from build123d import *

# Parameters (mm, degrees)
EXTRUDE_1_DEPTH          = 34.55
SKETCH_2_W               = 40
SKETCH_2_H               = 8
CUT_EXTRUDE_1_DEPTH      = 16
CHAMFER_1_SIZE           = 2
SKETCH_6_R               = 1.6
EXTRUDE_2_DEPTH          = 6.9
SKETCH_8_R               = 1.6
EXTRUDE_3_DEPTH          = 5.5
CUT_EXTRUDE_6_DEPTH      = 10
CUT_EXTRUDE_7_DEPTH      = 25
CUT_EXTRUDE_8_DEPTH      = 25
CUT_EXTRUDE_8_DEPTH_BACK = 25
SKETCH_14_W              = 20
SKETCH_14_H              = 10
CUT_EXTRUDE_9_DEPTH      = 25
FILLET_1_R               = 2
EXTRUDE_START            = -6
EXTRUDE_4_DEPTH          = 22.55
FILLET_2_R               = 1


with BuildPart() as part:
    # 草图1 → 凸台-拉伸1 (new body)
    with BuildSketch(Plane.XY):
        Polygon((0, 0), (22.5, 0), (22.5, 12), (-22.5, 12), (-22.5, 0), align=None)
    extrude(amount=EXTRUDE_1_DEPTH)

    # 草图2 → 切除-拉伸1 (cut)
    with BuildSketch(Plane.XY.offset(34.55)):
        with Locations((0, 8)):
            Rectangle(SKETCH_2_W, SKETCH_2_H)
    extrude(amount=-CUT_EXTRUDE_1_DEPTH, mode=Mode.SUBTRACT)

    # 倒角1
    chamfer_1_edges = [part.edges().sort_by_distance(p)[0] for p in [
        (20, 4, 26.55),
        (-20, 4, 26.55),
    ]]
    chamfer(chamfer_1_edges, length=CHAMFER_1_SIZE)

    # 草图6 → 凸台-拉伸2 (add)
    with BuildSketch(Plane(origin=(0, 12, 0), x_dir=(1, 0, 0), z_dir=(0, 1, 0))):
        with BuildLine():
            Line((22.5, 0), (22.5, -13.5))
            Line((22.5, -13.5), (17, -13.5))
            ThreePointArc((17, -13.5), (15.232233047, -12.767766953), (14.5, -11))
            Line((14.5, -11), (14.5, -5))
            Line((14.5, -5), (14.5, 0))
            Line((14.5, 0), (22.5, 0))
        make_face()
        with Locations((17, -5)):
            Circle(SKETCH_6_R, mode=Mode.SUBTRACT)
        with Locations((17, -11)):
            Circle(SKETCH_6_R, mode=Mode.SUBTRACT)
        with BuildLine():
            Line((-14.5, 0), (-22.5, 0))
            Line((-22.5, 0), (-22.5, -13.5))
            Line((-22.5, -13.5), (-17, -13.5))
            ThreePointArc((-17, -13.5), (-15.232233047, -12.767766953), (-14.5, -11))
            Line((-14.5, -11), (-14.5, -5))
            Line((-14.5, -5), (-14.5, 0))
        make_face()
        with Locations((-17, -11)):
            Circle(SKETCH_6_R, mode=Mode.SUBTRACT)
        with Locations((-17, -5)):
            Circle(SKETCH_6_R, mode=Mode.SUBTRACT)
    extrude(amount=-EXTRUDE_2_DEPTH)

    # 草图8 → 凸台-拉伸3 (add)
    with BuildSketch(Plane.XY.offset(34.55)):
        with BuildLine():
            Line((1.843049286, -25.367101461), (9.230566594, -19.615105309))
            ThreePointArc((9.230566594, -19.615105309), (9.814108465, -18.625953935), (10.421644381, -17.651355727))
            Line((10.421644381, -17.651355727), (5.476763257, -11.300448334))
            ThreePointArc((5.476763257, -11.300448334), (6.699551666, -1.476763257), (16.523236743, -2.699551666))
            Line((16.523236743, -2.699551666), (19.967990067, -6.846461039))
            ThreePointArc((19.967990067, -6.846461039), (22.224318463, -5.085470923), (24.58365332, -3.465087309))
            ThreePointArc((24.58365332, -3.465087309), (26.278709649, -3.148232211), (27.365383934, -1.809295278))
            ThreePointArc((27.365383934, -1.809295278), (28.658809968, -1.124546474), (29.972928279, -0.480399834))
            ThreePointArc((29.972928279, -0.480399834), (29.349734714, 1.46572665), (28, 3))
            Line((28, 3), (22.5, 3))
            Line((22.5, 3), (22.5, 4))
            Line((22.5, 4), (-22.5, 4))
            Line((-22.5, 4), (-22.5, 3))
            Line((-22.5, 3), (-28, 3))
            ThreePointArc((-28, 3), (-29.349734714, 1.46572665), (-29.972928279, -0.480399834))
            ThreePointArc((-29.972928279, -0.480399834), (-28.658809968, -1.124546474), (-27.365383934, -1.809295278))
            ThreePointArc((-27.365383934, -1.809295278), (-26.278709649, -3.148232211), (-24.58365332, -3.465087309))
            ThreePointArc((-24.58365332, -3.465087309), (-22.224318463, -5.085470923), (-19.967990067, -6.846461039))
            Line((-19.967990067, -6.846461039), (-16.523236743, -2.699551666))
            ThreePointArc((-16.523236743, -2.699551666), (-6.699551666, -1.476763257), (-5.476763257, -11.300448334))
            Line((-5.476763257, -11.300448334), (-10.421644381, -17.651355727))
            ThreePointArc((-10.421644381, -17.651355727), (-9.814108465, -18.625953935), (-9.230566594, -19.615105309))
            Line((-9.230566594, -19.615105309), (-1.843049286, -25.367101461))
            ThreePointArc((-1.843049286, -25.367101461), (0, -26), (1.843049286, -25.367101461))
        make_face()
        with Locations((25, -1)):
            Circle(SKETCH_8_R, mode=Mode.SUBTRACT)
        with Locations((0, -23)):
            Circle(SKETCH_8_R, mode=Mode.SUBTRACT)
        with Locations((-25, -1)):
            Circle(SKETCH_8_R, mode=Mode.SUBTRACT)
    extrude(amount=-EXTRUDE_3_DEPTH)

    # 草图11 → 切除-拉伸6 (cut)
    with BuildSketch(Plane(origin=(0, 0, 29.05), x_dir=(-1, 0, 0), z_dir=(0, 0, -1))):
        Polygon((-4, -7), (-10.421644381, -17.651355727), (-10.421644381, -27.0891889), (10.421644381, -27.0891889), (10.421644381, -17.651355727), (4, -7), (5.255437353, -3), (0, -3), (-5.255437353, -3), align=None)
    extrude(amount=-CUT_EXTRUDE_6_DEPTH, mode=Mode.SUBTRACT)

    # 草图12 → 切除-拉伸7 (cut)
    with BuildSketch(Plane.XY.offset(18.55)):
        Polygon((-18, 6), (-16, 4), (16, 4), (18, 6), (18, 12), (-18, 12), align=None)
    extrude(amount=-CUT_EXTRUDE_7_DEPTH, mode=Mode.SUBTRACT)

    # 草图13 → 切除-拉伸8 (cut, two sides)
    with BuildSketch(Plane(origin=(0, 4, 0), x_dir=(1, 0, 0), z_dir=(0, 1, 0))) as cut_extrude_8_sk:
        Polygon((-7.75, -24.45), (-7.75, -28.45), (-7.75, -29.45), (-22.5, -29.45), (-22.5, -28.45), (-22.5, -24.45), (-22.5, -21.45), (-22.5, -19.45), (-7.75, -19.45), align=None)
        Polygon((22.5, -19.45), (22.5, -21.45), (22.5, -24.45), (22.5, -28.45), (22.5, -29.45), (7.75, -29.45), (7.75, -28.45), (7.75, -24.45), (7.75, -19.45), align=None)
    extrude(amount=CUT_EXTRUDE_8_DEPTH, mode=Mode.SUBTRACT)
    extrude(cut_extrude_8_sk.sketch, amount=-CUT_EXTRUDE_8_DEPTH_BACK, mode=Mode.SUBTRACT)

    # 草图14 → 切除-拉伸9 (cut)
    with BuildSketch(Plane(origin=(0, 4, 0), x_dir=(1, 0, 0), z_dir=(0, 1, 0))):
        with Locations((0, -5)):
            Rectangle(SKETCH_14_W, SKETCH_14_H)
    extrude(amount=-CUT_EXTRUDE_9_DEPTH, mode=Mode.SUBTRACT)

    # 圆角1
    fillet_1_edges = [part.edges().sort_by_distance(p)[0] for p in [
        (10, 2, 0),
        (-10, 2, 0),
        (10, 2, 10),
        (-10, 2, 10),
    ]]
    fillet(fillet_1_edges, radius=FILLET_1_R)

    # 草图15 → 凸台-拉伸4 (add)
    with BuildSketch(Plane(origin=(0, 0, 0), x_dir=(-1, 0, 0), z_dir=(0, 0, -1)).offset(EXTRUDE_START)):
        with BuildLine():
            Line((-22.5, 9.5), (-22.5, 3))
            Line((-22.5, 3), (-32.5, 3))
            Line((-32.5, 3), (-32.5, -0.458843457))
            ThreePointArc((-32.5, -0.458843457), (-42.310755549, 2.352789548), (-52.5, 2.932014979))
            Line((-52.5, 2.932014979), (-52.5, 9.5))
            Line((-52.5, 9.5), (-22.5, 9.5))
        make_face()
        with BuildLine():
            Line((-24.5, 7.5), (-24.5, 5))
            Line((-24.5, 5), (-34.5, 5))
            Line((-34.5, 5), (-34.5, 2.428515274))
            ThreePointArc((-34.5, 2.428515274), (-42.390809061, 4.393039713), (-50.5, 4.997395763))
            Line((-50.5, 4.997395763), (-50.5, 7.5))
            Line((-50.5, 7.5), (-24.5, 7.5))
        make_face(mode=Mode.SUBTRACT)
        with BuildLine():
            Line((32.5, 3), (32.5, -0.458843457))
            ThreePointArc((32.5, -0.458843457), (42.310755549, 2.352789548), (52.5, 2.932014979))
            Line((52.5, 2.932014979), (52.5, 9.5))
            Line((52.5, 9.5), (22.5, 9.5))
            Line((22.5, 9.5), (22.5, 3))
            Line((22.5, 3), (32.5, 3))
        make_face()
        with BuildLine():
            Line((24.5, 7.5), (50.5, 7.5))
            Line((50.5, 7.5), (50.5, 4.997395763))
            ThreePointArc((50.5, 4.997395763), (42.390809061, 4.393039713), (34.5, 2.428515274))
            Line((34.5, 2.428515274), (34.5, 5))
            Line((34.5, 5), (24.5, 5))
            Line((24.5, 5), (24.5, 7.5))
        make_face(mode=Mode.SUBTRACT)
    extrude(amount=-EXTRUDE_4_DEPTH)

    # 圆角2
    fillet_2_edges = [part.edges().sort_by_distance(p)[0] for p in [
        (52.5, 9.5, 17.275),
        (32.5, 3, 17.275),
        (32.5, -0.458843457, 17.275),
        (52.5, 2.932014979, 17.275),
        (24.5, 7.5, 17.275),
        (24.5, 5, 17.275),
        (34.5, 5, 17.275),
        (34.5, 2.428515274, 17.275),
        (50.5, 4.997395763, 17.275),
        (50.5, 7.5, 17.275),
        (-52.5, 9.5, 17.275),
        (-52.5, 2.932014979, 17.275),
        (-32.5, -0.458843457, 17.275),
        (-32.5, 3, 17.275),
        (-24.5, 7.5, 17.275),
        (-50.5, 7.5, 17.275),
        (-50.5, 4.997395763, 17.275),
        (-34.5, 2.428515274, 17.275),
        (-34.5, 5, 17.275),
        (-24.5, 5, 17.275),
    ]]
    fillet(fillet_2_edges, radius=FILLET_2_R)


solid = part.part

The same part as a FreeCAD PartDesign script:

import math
import FreeCAD as App
import Part
import Sketcher

V = App.Vector
Q = App.Units.Quantity


def edges_at(feature, points):
    """Names of the edges that pass closest to the given points."""
    edges = feature.Shape.Edges
    near = lambda p: min(range(len(edges)), key=lambda i: edges[i].distToShape(Part.Vertex(*p))[0])
    return sorted({f"Edge{near(p) + 1}" for p in points})

doc = App.newDocument("Part")
params = doc.addObject("Spreadsheet::Sheet", "Params")
for row, (alias, value) in enumerate([
    ("sketch1_width", "45 mm"),
    ("sketch1_height", "12 mm"),
    ("pad1_length", "34.55 mm"),
    ("sketch2_width", "40 mm"),
    ("sketch2_height", "8 mm"),
    ("pocket1_length", "16 mm"),
    ("chamfer_size", "2 mm"),
    ("sketch3_diameter", "3.2 mm"),
    ("sketch3_radius", "2.5 mm"),
    ("sketch3_width", "8 mm"),
    ("sketch3_height", "11 mm"),
    ("pad2_length", "6.9 mm"),
    ("sketch4_radius", "7 mm"),
    ("sketch4_radius2", "47 mm"),
    ("sketch4_radius3", "5 mm"),
    ("sketch4_radius4", "3 mm"),
    ("sketch4_diameter", "3.2 mm"),
    ("pad3_length", "5.5 mm"),
    ("pocket2_length", "10 mm"),
    ("sketch6_width", "32 mm"),
    ("sketch6_width2", "36 mm"),
    ("sketch6_height", "6 mm"),
    ("pocket3_length", "25 mm"),
    ("sketch7_height", "10 mm"),
    ("sketch7_width", "14.75 mm"),
    ("sketch8_width", "20 mm"),
    ("sketch8_height", "10 mm"),
    ("pocket5_length", "25 mm"),
    ("fillet_radius", "2 mm"),
    ("sketch9_radius", "46 mm"),
    ("sketch9_radius2", "48 mm"),
    ("sketch9_width", "30 mm"),
    ("sketch9_width2", "10 mm"),
    ("sketch9_width3", "26 mm"),
    ("pad4_length", "22.55 mm"),
    ("fillet2_radius", "1 mm"),
], start=1):
    params.set(f"A{row}", alias)
    params.set(f"B{row}", "=" + value)
    params.setAlias(f"B{row}", alias)

body = doc.addObject("PartDesign::Body", "Body")

# Sketch on XY plane
sketch1 = body.newObject("Sketcher::SketchObject", "Sketch")
sketch1.AttachmentSupport = (doc.getObject("XY_Plane"), [""])
sketch1.MapMode = "FlatFace"
sketch1.addGeometry(Part.LineSegment(V(22.5, 0, 0), V(22.5, 12, 0)), False)
sketch1.addGeometry(Part.LineSegment(V(22.5, 12, 0), V(-22.5, 12, 0)), False)
sketch1.addGeometry(Part.LineSegment(V(-22.5, 12, 0), V(-22.5, 0, 0)), False)
sketch1.addGeometry(Part.LineSegment(V(-22.5, 0, 0), V(22.5, 0, 0)), False)
sketch1.addConstraint(Sketcher.Constraint("Coincident", 0, 2, 1, 1))
sketch1.addConstraint(Sketcher.Constraint("Coincident", 1, 2, 2, 1))
sketch1.addConstraint(Sketcher.Constraint("Coincident", 2, 2, 3, 1))
sketch1.addConstraint(Sketcher.Constraint("Coincident", 3, 2, 0, 1))
sketch1.addConstraint(Sketcher.Constraint("Vertical", 0))
sketch1.addConstraint(Sketcher.Constraint("Horizontal", 1))
sketch1.addConstraint(Sketcher.Constraint("Vertical", 2))
sketch1.addConstraint(Sketcher.Constraint("Horizontal", 3))
sketch1.addConstraint(Sketcher.Constraint("Symmetric", 2, 2, 3, 2, -1, 1))
sketch1.addConstraint(Sketcher.Constraint("DistanceX", 1, 2, 1, 1, Q("45 mm")))
sketch1.addConstraint(Sketcher.Constraint("DistanceY", 0, 1, 0, 2, Q("12 mm")))
sketch1.setExpression("Constraints[9]", "Params.sketch1_width")
sketch1.setExpression("Constraints[10]", "Params.sketch1_height")
pad1 = body.newObject("PartDesign::Pad", "Pad")
pad1.Profile = sketch1
pad1.setExpression("Length", "Params.pad1_length")

# Sketch on XY plane
sketch2 = body.newObject("Sketcher::SketchObject", "Sketch001")
sketch2.AttachmentSupport = (doc.getObject("XY_Plane"), [""])
sketch2.MapMode = "FlatFace"
sketch2.AttachmentOffset = App.Placement(V(0, 0, 34.55), App.Rotation())
sketch2.addGeometry(Part.LineSegment(V(-20, 12, 0), V(-20, 4, 0)), False)
sketch2.addGeometry(Part.LineSegment(V(-20, 4, 0), V(20, 4, 0)), False)
sketch2.addGeometry(Part.LineSegment(V(20, 4, 0), V(20, 12, 0)), False)
sketch2.addGeometry(Part.LineSegment(V(20, 12, 0), V(-20, 12, 0)), False)
sketch2.addConstraint(Sketcher.Constraint("Coincident", 0, 2, 1, 1))
sketch2.addConstraint(Sketcher.Constraint("Coincident", 1, 2, 2, 1))
sketch2.addConstraint(Sketcher.Constraint("Coincident", 2, 2, 3, 1))
sketch2.addConstraint(Sketcher.Constraint("Coincident", 3, 2, 0, 1))
sketch2.addConstraint(Sketcher.Constraint("Vertical", 0))
sketch2.addConstraint(Sketcher.Constraint("Horizontal", 1))
sketch2.addConstraint(Sketcher.Constraint("Vertical", 2))
sketch2.addConstraint(Sketcher.Constraint("Horizontal", 3))
sketch2.addConstraint(Sketcher.Constraint("DistanceX", 1, 1, 1, 2, Q("40 mm")))
sketch2.addConstraint(Sketcher.Constraint("DistanceY", 0, 2, 0, 1, Q("8 mm")))
sketch2.addConstraint(Sketcher.Constraint("DistanceX", 0, 2, -1, 1, Q("20 mm")))
sketch2.addConstraint(Sketcher.Constraint("DistanceY", -1, 1, 0, 2, Q("4 mm")))
sketch2.setExpression("Constraints[8]", "Params.sketch2_width")
sketch2.setExpression("Constraints[9]", "Params.sketch2_height")
pocket1 = body.newObject("PartDesign::Pocket", "Pocket")
pocket1.Profile = sketch2
pocket1.setExpression("Length", "Params.pocket1_length")
doc.recompute()

chamfer = body.newObject("PartDesign::Chamfer", "Chamfer")
chamfer.Base = (pocket1, edges_at(pocket1, [(20, 4, 26.55), (-20, 4, 26.55)]))
chamfer.setExpression("Size", "Params.chamfer_size")

# Sketch on XZ plane
sketch3 = body.newObject("Sketcher::SketchObject", "Sketch002")
sketch3.AttachmentSupport = (doc.getObject("XZ_Plane"), [""])
sketch3.MapMode = "FlatFace"
sketch3.AttachmentOffset = App.Placement(V(0, 0, -12), App.Rotation())
sketch3.addGeometry(Part.LineSegment(V(22.5, 13.5, 0), V(22.5, 0, 0)), False)
sketch3.addGeometry(Part.LineSegment(V(22.5, 0, 0), V(14.5, 0, 0)), False)
sketch3.addGeometry(Part.LineSegment(V(14.5, 0, 0), V(14.5, 11, 0)), False)
sketch3.addGeometry(Part.ArcOfCircle(Part.Circle(V(17, 11, 0), V(0, 0, 1), 2.5), math.radians(90), math.radians(180)), False)
sketch3.addGeometry(Part.LineSegment(V(17, 13.5, 0), V(22.5, 13.5, 0)), False)
sketch3.addGeometry(Part.Circle(V(17, 11, 0), V(0, 0, 1), 1.6), False)
sketch3.addGeometry(Part.Circle(V(17, 5, 0), V(0, 0, 1), 1.6), False)
sketch3.addGeometry(Part.LineSegment(V(-14.5, 0, 0), V(-22.5, 0, 0)), False)
sketch3.addGeometry(Part.LineSegment(V(-22.5, 0, 0), V(-22.5, 13.5, 0)), False)
sketch3.addGeometry(Part.LineSegment(V(-22.5, 13.5, 0), V(-17, 13.5, 0)), False)
sketch3.addGeometry(Part.ArcOfCircle(Part.Circle(V(-17, 11, 0), V(0, 0, 1), 2.5), math.radians(0), math.radians(90)), False)
sketch3.addGeometry(Part.LineSegment(V(-14.5, 11, 0), V(-14.5, 0, 0)), False)
sketch3.addGeometry(Part.Circle(V(-17, 11, 0), V(0, 0, 1), 1.6), False)
sketch3.addGeometry(Part.Circle(V(-17, 5, 0), V(0, 0, 1), 1.6), False)
sketch3.addConstraint(Sketcher.Constraint("Coincident", 0, 2, 1, 1))
sketch3.addConstraint(Sketcher.Constraint("Coincident", 1, 2, 2, 1))
sketch3.addConstraint(Sketcher.Constraint("Tangent", 2, 2, 3, 2))
sketch3.addConstraint(Sketcher.Constraint("Tangent", 3, 1, 4, 1))
sketch3.addConstraint(Sketcher.Constraint("Coincident", 4, 2, 0, 1))
sketch3.addConstraint(Sketcher.Constraint("Coincident", 7, 2, 8, 1))
sketch3.addConstraint(Sketcher.Constraint("Coincident", 8, 2, 9, 1))
sketch3.addConstraint(Sketcher.Constraint("Tangent", 9, 2, 10, 2))
sketch3.addConstraint(Sketcher.Constraint("Tangent", 10, 1, 11, 1))
sketch3.addConstraint(Sketcher.Constraint("Coincident", 11, 2, 7, 1))
sketch3.addConstraint(Sketcher.Constraint("Vertical", 0))
sketch3.addConstraint(Sketcher.Constraint("Horizontal", 1))
sketch3.addConstraint(Sketcher.Constraint("Vertical", 2))
sketch3.addConstraint(Sketcher.Constraint("Horizontal", 4))
sketch3.addConstraint(Sketcher.Constraint("Horizontal", 7))
sketch3.addConstraint(Sketcher.Constraint("Vertical", 8))
sketch3.addConstraint(Sketcher.Constraint("Horizontal", 9))
sketch3.addConstraint(Sketcher.Constraint("Vertical", 11))
sketch3.addConstraint(Sketcher.Constraint("Coincident", 5, 3, 3, 3))
sketch3.addConstraint(Sketcher.Constraint("Coincident", 12, 3, 10, 3))
sketch3.addConstraint(Sketcher.Constraint("Equal", 5, 6))
sketch3.addConstraint(Sketcher.Constraint("Equal", 3, 10))
sketch3.addConstraint(Sketcher.Constraint("Equal", 6, 12))
sketch3.addConstraint(Sketcher.Constraint("Equal", 12, 13))
sketch3.addConstraint(Sketcher.Constraint("Symmetric", 0, 2, 7, 2, -1, 1))
sketch3.addConstraint(Sketcher.Constraint("Symmetric", 3, 3, 10, 3, -2))
sketch3.addConstraint(Sketcher.Constraint("Symmetric", 6, 3, 13, 3, -2))
sketch3.addConstraint(Sketcher.Constraint("PointOnObject", 0, 2, -1))
sketch3.addConstraint(Sketcher.Constraint("Vertical", 5, 3, 6, 3))
sketch3.addConstraint(Sketcher.Constraint("Diameter", 5, Q("3.2 mm")))
sketch3.addConstraint(Sketcher.Constraint("Radius", 3, Q("2.5 mm")))
sketch3.addConstraint(Sketcher.Constraint("DistanceX", 1, 2, 1, 1, Q("8 mm")))
sketch3.addConstraint(Sketcher.Constraint("DistanceY", 2, 1, 2, 2, Q("11 mm")))
sketch3.addConstraint(Sketcher.Constraint("DistanceX", -1, 1, 3, 3, Q("17 mm")))
sketch3.addConstraint(Sketcher.Constraint("DistanceY", -1, 1, 6, 3, Q("5 mm")))
sketch3.setExpression("Constraints[29]", "Params.sketch3_diameter")
sketch3.setExpression("Constraints[30]", "Params.sketch3_radius")
sketch3.setExpression("Constraints[31]", "Params.sketch3_width")
sketch3.setExpression("Constraints[32]", "Params.sketch3_height")
pad2 = body.newObject("PartDesign::Pad", "Pad001")
pad2.Profile = sketch3
pad2.setExpression("Length", "Params.pad2_length")

# Sketch on XY plane
sketch4 = body.newObject("Sketcher::SketchObject", "Sketch003")
sketch4.AttachmentSupport = (doc.getObject("XY_Plane"), [""])
sketch4.MapMode = "FlatFace"
sketch4.AttachmentOffset = App.Placement(V(0, 0, 34.55), App.Rotation())
sketch4.addGeometry(Part.LineSegment(V(1.843049, -25.367101, 0), V(9.230567, -19.615105, 0)), False)
sketch4.addGeometry(Part.ArcOfCircle(Part.Circle(V(49.999998, -42.999999, 0), V(0, 0, 1), 46.999997), math.radians(147.361765), math.radians(150.161896)), False)
sketch4.addGeometry(Part.LineSegment(V(10.421644, -17.651356, 0), V(5.476763, -11.300448, 0)), False)
sketch4.addGeometry(Part.ArcOfCircle(Part.Circle(V(11, -7, 0), V(0, 0, 1), 7), math.radians(37.904688), math.radians(217.904688)), False)
sketch4.addGeometry(Part.LineSegment(V(16.523237, -2.699552, 0), V(19.96799, -6.846461, 0)), False)
sketch4.addGeometry(Part.ArcOfCircle(Part.Circle(V(50, -43, 0), V(0, 0, 1), 47), math.radians(122.736299), math.radians(129.715723)), False)
sketch4.addGeometry(Part.ArcOfCircle(Part.Circle(V(25, -1, 0), V(0, 0, 1), 2.5), math.radians(-99.586631), math.radians(-18.88793)), False)
sketch4.addGeometry(Part.ArcOfCircle(Part.Circle(V(50, -43, 0), V(0, 0, 1), 47), math.radians(115.220811), math.radians(118.789141)), False)
sketch4.addGeometry(Part.ArcOfCircle(Part.Circle(V(25, -1, 0), V(0, 0, 1), 5), math.radians(5.964949), math.radians(53.130102)), False)
sketch4.addGeometry(Part.LineSegment(V(28, 3, 0), V(22.5, 3, 0)), False)
sketch4.addGeometry(Part.LineSegment(V(22.5, 3, 0), V(22.5, 4, 0)), False)
sketch4.addGeometry(Part.LineSegment(V(22.5, 4, 0), V(-22.5, 4, 0)), False)
sketch4.addGeometry(Part.LineSegment(V(-22.5, 4, 0), V(-22.5, 3, 0)), False)
sketch4.addGeometry(Part.LineSegment(V(-22.5, 3, 0), V(-28, 3, 0)), False)
sketch4.addGeometry(Part.ArcOfCircle(Part.Circle(V(-25, -1, 0), V(0, 0, 1), 5), math.radians(126.869898), math.radians(174.035051)), False)
sketch4.addGeometry(Part.ArcOfCircle(Part.Circle(V(-50, -43, 0), V(0, 0, 1), 47), math.radians(61.210859), math.radians(64.779189)), False)
sketch4.addGeometry(Part.ArcOfCircle(Part.Circle(V(-25, -1, 0), V(0, 0, 1), 2.5), math.radians(-161.11207), math.radians(-80.413369)), False)
sketch4.addGeometry(Part.ArcOfCircle(Part.Circle(V(-50, -43, 0), V(0, 0, 1), 47), math.radians(50.284277), math.radians(57.263701)), False)
sketch4.addGeometry(Part.LineSegment(V(-19.96799, -6.846461, 0), V(-16.523237, -2.699552, 0)), False)
sketch4.addGeometry(Part.ArcOfCircle(Part.Circle(V(-11, -7, 0), V(0, 0, 1), 7), math.radians(-37.904688), math.radians(142.095312)), False)
sketch4.addGeometry(Part.LineSegment(V(-5.476763, -11.300448, 0), V(-10.421644, -17.651356, 0)), False)
sketch4.addGeometry(Part.ArcOfCircle(Part.Circle(V(-49.999998, -42.999999, 0), V(0, 0, 1), 46.999997), math.radians(29.838104), math.radians(32.638235)), False)
sketch4.addGeometry(Part.LineSegment(V(-9.230567, -19.615105, 0), V(-1.843049, -25.367101, 0)), False)
sketch4.addGeometry(Part.ArcOfCircle(Part.Circle(V(0, -23, 0), V(0, 0, 1), 3), math.radians(-127.904688), math.radians(-52.095312)), False)
sketch4.addGeometry(Part.Circle(V(0, -23, 0), V(0, 0, 1), 1.6), False)
sketch4.addGeometry(Part.Circle(V(-25, -1, 0), V(0, 0, 1), 1.6), False)
sketch4.addGeometry(Part.Circle(V(25, -1, 0), V(0, 0, 1), 1.6), False)
sketch4.addConstraint(Sketcher.Constraint("Coincident", 0, 2, 1, 2))
sketch4.addConstraint(Sketcher.Constraint("Coincident", 1, 1, 2, 1))
sketch4.addConstraint(Sketcher.Constraint("Tangent", 2, 2, 3, 2))
sketch4.addConstraint(Sketcher.Constraint("Coincident", 3, 1, 4, 1))
sketch4.addConstraint(Sketcher.Constraint("Coincident", 4, 2, 5, 2))
sketch4.addConstraint(Sketcher.Constraint("Coincident", 5, 1, 6, 1))
sketch4.addConstraint(Sketcher.Constraint("Coincident", 6, 2, 7, 2))
sketch4.addConstraint(Sketcher.Constraint("Coincident", 7, 1, 8, 1))
sketch4.addConstraint(Sketcher.Constraint("Coincident", 8, 2, 9, 1))
sketch4.addConstraint(Sketcher.Constraint("Coincident", 9, 2, 10, 1))
sketch4.addConstraint(Sketcher.Constraint("Coincident", 10, 2, 11, 1))
sketch4.addConstraint(Sketcher.Constraint("Coincident", 11, 2, 12, 1))
sketch4.addConstraint(Sketcher.Constraint("Coincident", 12, 2, 13, 1))
sketch4.addConstraint(Sketcher.Constraint("Coincident", 13, 2, 14, 1))
sketch4.addConstraint(Sketcher.Constraint("Coincident", 14, 2, 15, 2))
sketch4.addConstraint(Sketcher.Constraint("Coincident", 15, 1, 16, 1))
sketch4.addConstraint(Sketcher.Constraint("Coincident", 16, 2, 17, 2))
sketch4.addConstraint(Sketcher.Constraint("Coincident", 17, 1, 18, 1))
sketch4.addConstraint(Sketcher.Constraint("Coincident", 18, 2, 19, 2))
sketch4.addConstraint(Sketcher.Constraint("Tangent", 19, 1, 20, 1))
sketch4.addConstraint(Sketcher.Constraint("Coincident", 20, 2, 21, 2))
sketch4.addConstraint(Sketcher.Constraint("Coincident", 21, 1, 22, 1))
sketch4.addConstraint(Sketcher.Constraint("Tangent", 22, 2, 23, 1))
sketch4.addConstraint(Sketcher.Constraint("Tangent", 23, 2, 0, 1))
sketch4.addConstraint(Sketcher.Constraint("Horizontal", 9))
sketch4.addConstraint(Sketcher.Constraint("Vertical", 10))
sketch4.addConstraint(Sketcher.Constraint("Horizontal", 11))
sketch4.addConstraint(Sketcher.Constraint("Vertical", 12))
sketch4.addConstraint(Sketcher.Constraint("Horizontal", 13))
sketch4.addConstraint(Sketcher.Constraint("Coincident", 5, 3, 1, 3))
sketch4.addConstraint(Sketcher.Constraint("Coincident", 7, 3, 1, 3))
sketch4.addConstraint(Sketcher.Constraint("Coincident", 8, 3, 6, 3))
sketch4.addConstraint(Sketcher.Constraint("Coincident", 16, 3, 14, 3))
sketch4.addConstraint(Sketcher.Constraint("Coincident", 17, 3, 15, 3))
sketch4.addConstraint(Sketcher.Constraint("Coincident", 21, 3, 15, 3))
sketch4.addConstraint(Sketcher.Constraint("Coincident", 24, 3, 23, 3))
sketch4.addConstraint(Sketcher.Constraint("Coincident", 25, 3, 14, 3))
sketch4.addConstraint(Sketcher.Constraint("Coincident", 26, 3, 6, 3))
sketch4.addConstraint(Sketcher.Constraint("Equal", 5, 7))
sketch4.addConstraint(Sketcher.Constraint("Equal", 8, 14))
sketch4.addConstraint(Sketcher.Constraint("Equal", 7, 15))
sketch4.addConstraint(Sketcher.Constraint("Equal", 6, 16))
sketch4.addConstraint(Sketcher.Constraint("Equal", 15, 17))
sketch4.addConstraint(Sketcher.Constraint("Equal", 3, 19))
sketch4.addConstraint(Sketcher.Constraint("Equal", 1, 21))
sketch4.addConstraint(Sketcher.Constraint("Equal", 24, 25))
sketch4.addConstraint(Sketcher.Constraint("Equal", 25, 26))
sketch4.addConstraint(Sketcher.Constraint("Symmetric", 6, 3, 14, 3, -2))
sketch4.addConstraint(Sketcher.Constraint("Symmetric", 1, 3, 15, 3, -2))
sketch4.addConstraint(Sketcher.Constraint("Symmetric", 3, 3, 19, 3, -2))
sketch4.addConstraint(Sketcher.Constraint("Symmetric", 9, 2, 12, 2, -2))
sketch4.addConstraint(Sketcher.Constraint("Symmetric", 22, 2, 23, 2, -2))
sketch4.addConstraint(Sketcher.Constraint("Perpendicular", 0, 2))
sketch4.addConstraint(Sketcher.Constraint("Perpendicular", 20, 22))
sketch4.addConstraint(Sketcher.Constraint("Horizontal", 4, 2, 17, 1))
sketch4.addConstraint(Sketcher.Constraint("Horizontal", 3, 1, 18, 2))
sketch4.addConstraint(Sketcher.Constraint("Radius", 3, Q("7 mm")))
sketch4.addConstraint(Sketcher.Constraint("Radius", 5, Q("47 mm")))
sketch4.addConstraint(Sketcher.Constraint("Radius", 8, Q("5 mm")))
sketch4.addConstraint(Sketcher.Constraint("Radius", 23, Q("3 mm")))
sketch4.addConstraint(Sketcher.Constraint("Diameter", 24, Q("3.2 mm")))
sketch4.addConstraint(Sketcher.Constraint("Radius", 6, Q("2.5 mm")))
sketch4.addConstraint(Sketcher.Constraint("DistanceX", 11, 2, 11, 1, Q("45 mm")))
sketch4.addConstraint(Sketcher.Constraint("DistanceY", 10, 1, 10, 2, Q("1 mm")))
sketch4.addConstraint(Sketcher.Constraint("DistanceX", 9, 2, 9, 1, Q("5.5 mm")))
sketch4.addConstraint(Sketcher.Constraint("DistanceY", 1, 3, -1, 1, Q("42.999999 mm")))
sketch4.addConstraint(Sketcher.Constraint("DistanceX", -1, 1, 3, 3, Q("11 mm")))
sketch4.addConstraint(Sketcher.Constraint("DistanceY", 3, 3, -1, 1, Q("7 mm")))
sketch4.addConstraint(Sketcher.Constraint("DistanceX", -1, 1, 5, 3, Q("50 mm")))
sketch4.addConstraint(Sketcher.Constraint("DistanceX", -1, 1, 6, 3, Q("25 mm")))
sketch4.addConstraint(Sketcher.Constraint("DistanceY", 6, 3, -1, 1, Q("1 mm")))
sketch4.addConstraint(Sketcher.Constraint("DistanceY", 23, 3, -1, 1, Q("23 mm")))
sketch4.addConstraint(Sketcher.Constraint("Radius", 1, Q("46.999997 mm")))
sketch4.addConstraint(Sketcher.Constraint("DistanceY", 22, 2, -1, 1, Q("25.367101 mm")))
sketch4.addConstraint(Sketcher.Constraint("DistanceY", 3, 1, -1, 1, Q("2.699552 mm")))
sketch4.addConstraint(Sketcher.Constraint("DistanceX", -1, 1, 4, 2, Q("19.96799 mm")))
sketch4.setExpression("Constraints[56]", "Params.sketch4_radius")
sketch4.setExpression("Constraints[57]", "Params.sketch4_radius2")
sketch4.setExpression("Constraints[58]", "Params.sketch4_radius3")
sketch4.setExpression("Constraints[59]", "Params.sketch4_radius4")
sketch4.setExpression("Constraints[60]", "Params.sketch4_diameter")
pad3 = body.newObject("PartDesign::Pad", "Pad002")
pad3.Profile = sketch4
pad3.setExpression("Length", "Params.pad3_length")
pad3.Reversed = True

# Sketch on XY plane
sketch5 = body.newObject("Sketcher::SketchObject", "Sketch004")
sketch5.AttachmentSupport = (doc.getObject("XY_Plane"), [""])
sketch5.MapMode = "FlatFace"
sketch5.AttachmentOffset = App.Placement(V(0, 0, 29.05), App.Rotation())
sketch5.addGeometry(Part.LineSegment(V(4, -7, 0), V(10.421644, -17.651356, 0)), False)
sketch5.addGeometry(Part.LineSegment(V(10.421644, -17.651356, 0), V(10.421644, -27.089189, 0)), False)
sketch5.addGeometry(Part.LineSegment(V(10.421644, -27.089189, 0), V(-10.421644, -27.089189, 0)), False)
sketch5.addGeometry(Part.LineSegment(V(-10.421644, -27.089189, 0), V(-10.421644, -17.651356, 0)), False)
sketch5.addGeometry(Part.LineSegment(V(-10.421644, -17.651356, 0), V(-4, -7, 0)), False)
sketch5.addGeometry(Part.LineSegment(V(-4, -7, 0), V(-5.255437, -3, 0)), False)
sketch5.addGeometry(Part.LineSegment(V(-5.255437, -3, 0), V(5.255437, -3, 0)), False)
sketch5.addGeometry(Part.LineSegment(V(5.255437, -3, 0), V(4, -7, 0)), False)
sketch5.addConstraint(Sketcher.Constraint("Coincident", 0, 2, 1, 1))
sketch5.addConstraint(Sketcher.Constraint("Coincident", 1, 2, 2, 1))
sketch5.addConstraint(Sketcher.Constraint("Coincident", 2, 2, 3, 1))
sketch5.addConstraint(Sketcher.Constraint("Coincident", 3, 2, 4, 1))
sketch5.addConstraint(Sketcher.Constraint("Coincident", 4, 2, 5, 1))
sketch5.addConstraint(Sketcher.Constraint("Coincident", 5, 2, 6, 1))
sketch5.addConstraint(Sketcher.Constraint("Coincident", 6, 2, 7, 1))
sketch5.addConstraint(Sketcher.Constraint("Coincident", 7, 2, 0, 1))
sketch5.addConstraint(Sketcher.Constraint("Vertical", 1))
sketch5.addConstraint(Sketcher.Constraint("Horizontal", 2))
sketch5.addConstraint(Sketcher.Constraint("Vertical", 3))
sketch5.addConstraint(Sketcher.Constraint("Horizontal", 6))
sketch5.addConstraint(Sketcher.Constraint("Symmetric", 0, 2, 3, 2, -2))
sketch5.addConstraint(Sketcher.Constraint("Symmetric", 4, 2, 7, 2, -2))
sketch5.addConstraint(Sketcher.Constraint("Equal", 5, 7))
sketch5.addConstraint(Sketcher.Constraint("DistanceX", 4, 2, -1, 1, Q("4 mm")))
sketch5.addConstraint(Sketcher.Constraint("DistanceY", 4, 2, -1, 1, Q("7 mm")))
sketch5.addConstraint(Sketcher.Constraint("DistanceY", 5, 2, -1, 1, Q("3 mm")))
sketch5.addConstraint(Sketcher.Constraint("Distance", 0, Q("12.437399 mm")))
sketch5.addConstraint(Sketcher.Constraint("DistanceX", 2, 2, 2, 1, Q("20.843289 mm")))
sketch5.addConstraint(Sketcher.Constraint("Distance", 5, Q("4.192389 mm")))
sketch5.addConstraint(Sketcher.Constraint("DistanceY", 1, 2, 1, 1, Q("9.437833 mm")))
pocket2 = body.newObject("PartDesign::Pocket", "Pocket001")
pocket2.Profile = sketch5
pocket2.setExpression("Length", "Params.pocket2_length")
pocket2.Reversed = True

# Sketch on XY plane
sketch6 = body.newObject("Sketcher::SketchObject", "Sketch005")
sketch6.AttachmentSupport = (doc.getObject("XY_Plane"), [""])
sketch6.MapMode = "FlatFace"
sketch6.AttachmentOffset = App.Placement(V(0, 0, 18.55), App.Rotation())
sketch6.addGeometry(Part.LineSegment(V(-18, 6, 0), V(-16, 4, 0)), False)
sketch6.addGeometry(Part.LineSegment(V(-16, 4, 0), V(16, 4, 0)), False)
sketch6.addGeometry(Part.LineSegment(V(16, 4, 0), V(18, 6, 0)), False)
sketch6.addGeometry(Part.LineSegment(V(18, 6, 0), V(18, 12, 0)), False)
sketch6.addGeometry(Part.LineSegment(V(18, 12, 0), V(-18, 12, 0)), False)
sketch6.addGeometry(Part.LineSegment(V(-18, 12, 0), V(-18, 6, 0)), False)
sketch6.addConstraint(Sketcher.Constraint("Coincident", 0, 2, 1, 1))
sketch6.addConstraint(Sketcher.Constraint("Coincident", 1, 2, 2, 1))
sketch6.addConstraint(Sketcher.Constraint("Coincident", 2, 2, 3, 1))
sketch6.addConstraint(Sketcher.Constraint("Coincident", 3, 2, 4, 1))
sketch6.addConstraint(Sketcher.Constraint("Coincident", 4, 2, 5, 1))
sketch6.addConstraint(Sketcher.Constraint("Coincident", 5, 2, 0, 1))
sketch6.addConstraint(Sketcher.Constraint("Horizontal", 1))
sketch6.addConstraint(Sketcher.Constraint("Vertical", 3))
sketch6.addConstraint(Sketcher.Constraint("Horizontal", 4))
sketch6.addConstraint(Sketcher.Constraint("Vertical", 5))
sketch6.addConstraint(Sketcher.Constraint("Symmetric", 2, 2, 5, 2, -2))
sketch6.addConstraint(Sketcher.Constraint("Perpendicular", 0, 2))
sketch6.addConstraint(Sketcher.Constraint("Equal", 0, 2))
sketch6.addConstraint(Sketcher.Constraint("DistanceX", 1, 1, 1, 2, Q("32 mm")))
sketch6.addConstraint(Sketcher.Constraint("DistanceX", 4, 2, 4, 1, Q("36 mm")))
sketch6.addConstraint(Sketcher.Constraint("DistanceY", 3, 1, 3, 2, Q("6 mm")))
sketch6.addConstraint(Sketcher.Constraint("DistanceY", -1, 1, 0, 2, Q("4 mm")))
sketch6.setExpression("Constraints[13]", "Params.sketch6_width")
sketch6.setExpression("Constraints[14]", "Params.sketch6_width2")
sketch6.setExpression("Constraints[15]", "Params.sketch6_height")
pocket3 = body.newObject("PartDesign::Pocket", "Pocket002")
pocket3.Profile = sketch6
pocket3.setExpression("Length", "Params.pocket3_length")

# Sketch on XZ plane
sketch7 = body.newObject("Sketcher::SketchObject", "Sketch006")
sketch7.AttachmentSupport = (doc.getObject("XZ_Plane"), [""])
sketch7.MapMode = "FlatFace"
sketch7.AttachmentOffset = App.Placement(V(0, 0, -4), App.Rotation())
sketch7.addGeometry(Part.LineSegment(V(-7.75, 29.45, 0), V(-7.75, 19.45, 0)), False)
sketch7.addGeometry(Part.LineSegment(V(-7.75, 19.45, 0), V(-22.5, 19.45, 0)), False)
sketch7.addGeometry(Part.LineSegment(V(-22.5, 19.45, 0), V(-22.5, 29.45, 0)), False)
sketch7.addGeometry(Part.LineSegment(V(-22.5, 29.45, 0), V(-7.75, 29.45, 0)), False)
sketch7.addGeometry(Part.LineSegment(V(22.5, 29.45, 0), V(22.5, 19.45, 0)), False)
sketch7.addGeometry(Part.LineSegment(V(22.5, 19.45, 0), V(7.75, 19.45, 0)), False)
sketch7.addGeometry(Part.LineSegment(V(7.75, 19.45, 0), V(7.75, 29.45, 0)), False)
sketch7.addGeometry(Part.LineSegment(V(7.75, 29.45, 0), V(22.5, 29.45, 0)), False)
sketch7.addConstraint(Sketcher.Constraint("Coincident", 0, 2, 1, 1))
sketch7.addConstraint(Sketcher.Constraint("Coincident", 1, 2, 2, 1))
sketch7.addConstraint(Sketcher.Constraint("Coincident", 2, 2, 3, 1))
sketch7.addConstraint(Sketcher.Constraint("Coincident", 3, 2, 0, 1))
sketch7.addConstraint(Sketcher.Constraint("Coincident", 4, 2, 5, 1))
sketch7.addConstraint(Sketcher.Constraint("Coincident", 5, 2, 6, 1))
sketch7.addConstraint(Sketcher.Constraint("Coincident", 6, 2, 7, 1))
sketch7.addConstraint(Sketcher.Constraint("Coincident", 7, 2, 4, 1))
sketch7.addConstraint(Sketcher.Constraint("Vertical", 0))
sketch7.addConstraint(Sketcher.Constraint("Horizontal", 1))
sketch7.addConstraint(Sketcher.Constraint("Vertical", 2))
sketch7.addConstraint(Sketcher.Constraint("Horizontal", 3))
sketch7.addConstraint(Sketcher.Constraint("Vertical", 4))
sketch7.addConstraint(Sketcher.Constraint("Horizontal", 5))
sketch7.addConstraint(Sketcher.Constraint("Vertical", 6))
sketch7.addConstraint(Sketcher.Constraint("Horizontal", 7))
sketch7.addConstraint(Sketcher.Constraint("Symmetric", 1, 2, 4, 2, -2))
sketch7.addConstraint(Sketcher.Constraint("Symmetric", 3, 2, 6, 2, -2))
sketch7.addConstraint(Sketcher.Constraint("DistanceY", 0, 2, 0, 1, Q("10 mm")))
sketch7.addConstraint(Sketcher.Constraint("DistanceX", 1, 2, 4, 2, Q("45 mm")))
sketch7.addConstraint(Sketcher.Constraint("DistanceX", 1, 2, 1, 1, Q("14.75 mm")))
sketch7.addConstraint(Sketcher.Constraint("DistanceY", -1, 1, 0, 2, Q("19.45 mm")))
sketch7.setExpression("Constraints[18]", "Params.sketch7_height")
sketch7.setExpression("Constraints[20]", "Params.sketch7_width")
pocket4 = body.newObject("PartDesign::Pocket", "Pocket003")
pocket4.Profile = sketch7
pocket4.Type = "ThroughAll"
pocket4.Midplane = True

# Sketch on XZ plane
sketch8 = body.newObject("Sketcher::SketchObject", "Sketch007")
sketch8.AttachmentSupport = (doc.getObject("XZ_Plane"), [""])
sketch8.MapMode = "FlatFace"
sketch8.AttachmentOffset = App.Placement(V(0, 0, -4), App.Rotation())
sketch8.addGeometry(Part.LineSegment(V(-10, 0, 0), V(-10, 10, 0)), False)
sketch8.addGeometry(Part.LineSegment(V(-10, 10, 0), V(10, 10, 0)), False)
sketch8.addGeometry(Part.LineSegment(V(10, 10, 0), V(10, 0, 0)), False)
sketch8.addGeometry(Part.LineSegment(V(10, 0, 0), V(-10, 0, 0)), False)
sketch8.addConstraint(Sketcher.Constraint("Coincident", 0, 2, 1, 1))
sketch8.addConstraint(Sketcher.Constraint("Coincident", 1, 2, 2, 1))
sketch8.addConstraint(Sketcher.Constraint("Coincident", 2, 2, 3, 1))
sketch8.addConstraint(Sketcher.Constraint("Coincident", 3, 2, 0, 1))
sketch8.addConstraint(Sketcher.Constraint("Vertical", 0))
sketch8.addConstraint(Sketcher.Constraint("Horizontal", 1))
sketch8.addConstraint(Sketcher.Constraint("Vertical", 2))
sketch8.addConstraint(Sketcher.Constraint("Horizontal", 3))
sketch8.addConstraint(Sketcher.Constraint("Symmetric", 2, 2, 3, 2, -1, 1))
sketch8.addConstraint(Sketcher.Constraint("DistanceX", 1, 1, 1, 2, Q("20 mm")))
sketch8.addConstraint(Sketcher.Constraint("DistanceY", 0, 1, 0, 2, Q("10 mm")))
sketch8.setExpression("Constraints[9]", "Params.sketch8_width")
sketch8.setExpression("Constraints[10]", "Params.sketch8_height")
pocket5 = body.newObject("PartDesign::Pocket", "Pocket004")
pocket5.Profile = sketch8
pocket5.setExpression("Length", "Params.pocket5_length")
pocket5.Reversed = True
doc.recompute()

fillet = body.newObject("PartDesign::Fillet", "Fillet")
fillet.Base = (pocket5, edges_at(pocket5, [
    (10, 2, 0),
    (-10, 2, 0),
    (10, 2, 10),
    (-10, 2, 10),
]))
fillet.setExpression("Radius", "Params.fillet_radius")

# Sketch on XY plane
sketch9 = body.newObject("Sketcher::SketchObject", "Sketch008")
sketch9.AttachmentSupport = (doc.getObject("XY_Plane"), [""])
sketch9.MapMode = "FlatFace"
sketch9.AttachmentOffset = App.Placement(V(0, 0, 6), App.Rotation())
sketch9.addGeometry(Part.LineSegment(V(22.5, 3, 0), V(22.5, 9.5, 0)), False)
sketch9.addGeometry(Part.LineSegment(V(22.5, 9.5, 0), V(52.5, 9.5, 0)), False)
sketch9.addGeometry(Part.LineSegment(V(52.5, 9.5, 0), V(52.5, 2.932015, 0)), False)
sketch9.addGeometry(Part.ArcOfCircle(Part.Circle(V(50, -43, 0), V(0, 0, 1), 46), math.radians(86.884564), math.radians(112.360617)), False)
sketch9.addGeometry(Part.LineSegment(V(32.5, -0.458843, 0), V(32.5, 3, 0)), False)
sketch9.addGeometry(Part.LineSegment(V(32.5, 3, 0), V(22.5, 3, 0)), False)
sketch9.addGeometry(Part.LineSegment(V(24.5, 7.5, 0), V(24.5, 5, 0)), False)
sketch9.addGeometry(Part.LineSegment(V(24.5, 5, 0), V(34.5, 5, 0)), False)
sketch9.addGeometry(Part.LineSegment(V(34.5, 5, 0), V(34.5, 2.428515, 0)), False)
sketch9.addGeometry(Part.ArcOfCircle(Part.Circle(V(50, -43, 0), V(0, 0, 1), 48), math.radians(89.403158), math.radians(108.839405)), False)
sketch9.addGeometry(Part.LineSegment(V(50.5, 4.997396, 0), V(50.5, 7.5, 0)), False)
sketch9.addGeometry(Part.LineSegment(V(50.5, 7.5, 0), V(24.5, 7.5, 0)), False)
sketch9.addGeometry(Part.LineSegment(V(-32.5, 3, 0), V(-32.5, -0.458843, 0)), False)
sketch9.addGeometry(Part.ArcOfCircle(Part.Circle(V(-50, -43, 0), V(0, 0, 1), 46), math.radians(67.639383), math.radians(93.115436)), False)
sketch9.addGeometry(Part.LineSegment(V(-52.5, 2.932015, 0), V(-52.5, 9.5, 0)), False)
sketch9.addGeometry(Part.LineSegment(V(-52.5, 9.5, 0), V(-22.5, 9.5, 0)), False)
sketch9.addGeometry(Part.LineSegment(V(-22.5, 9.5, 0), V(-22.5, 3, 0)), False)
sketch9.addGeometry(Part.LineSegment(V(-22.5, 3, 0), V(-32.5, 3, 0)), False)
sketch9.addGeometry(Part.LineSegment(V(-24.5, 5, 0), V(-24.5, 7.5, 0)), False)
sketch9.addGeometry(Part.LineSegment(V(-24.5, 7.5, 0), V(-50.5, 7.5, 0)), False)
sketch9.addGeometry(Part.LineSegment(V(-50.5, 7.5, 0), V(-50.5, 4.997396, 0)), False)
sketch9.addGeometry(Part.ArcOfCircle(Part.Circle(V(-50, -43, 0), V(0, 0, 1), 48), math.radians(71.160595), math.radians(90.596842)), False)
sketch9.addGeometry(Part.LineSegment(V(-34.5, 2.428515, 0), V(-34.5, 5, 0)), False)
sketch9.addGeometry(Part.LineSegment(V(-34.5, 5, 0), V(-24.5, 5, 0)), False)
sketch9.addConstraint(Sketcher.Constraint("Coincident", 0, 2, 1, 1))
sketch9.addConstraint(Sketcher.Constraint("Coincident", 1, 2, 2, 1))
sketch9.addConstraint(Sketcher.Constraint("Coincident", 2, 2, 3, 1))
sketch9.addConstraint(Sketcher.Constraint("Coincident", 3, 2, 4, 1))
sketch9.addConstraint(Sketcher.Constraint("Coincident", 4, 2, 5, 1))
sketch9.addConstraint(Sketcher.Constraint("Coincident", 5, 2, 0, 1))
sketch9.addConstraint(Sketcher.Constraint("Coincident", 6, 2, 7, 1))
sketch9.addConstraint(Sketcher.Constraint("Coincident", 7, 2, 8, 1))
sketch9.addConstraint(Sketcher.Constraint("Coincident", 8, 2, 9, 2))
sketch9.addConstraint(Sketcher.Constraint("Coincident", 9, 1, 10, 1))
sketch9.addConstraint(Sketcher.Constraint("Coincident", 10, 2, 11, 1))
sketch9.addConstraint(Sketcher.Constraint("Coincident", 11, 2, 6, 1))
sketch9.addConstraint(Sketcher.Constraint("Coincident", 12, 2, 13, 1))
sketch9.addConstraint(Sketcher.Constraint("Coincident", 13, 2, 14, 1))
sketch9.addConstraint(Sketcher.Constraint("Coincident", 14, 2, 15, 1))
sketch9.addConstraint(Sketcher.Constraint("Coincident", 15, 2, 16, 1))
sketch9.addConstraint(Sketcher.Constraint("Coincident", 16, 2, 17, 1))
sketch9.addConstraint(Sketcher.Constraint("Coincident", 17, 2, 12, 1))
sketch9.addConstraint(Sketcher.Constraint("Coincident", 18, 2, 19, 1))
sketch9.addConstraint(Sketcher.Constraint("Coincident", 19, 2, 20, 1))
sketch9.addConstraint(Sketcher.Constraint("Coincident", 20, 2, 21, 2))
sketch9.addConstraint(Sketcher.Constraint("Coincident", 21, 1, 22, 1))
sketch9.addConstraint(Sketcher.Constraint("Coincident", 22, 2, 23, 1))
sketch9.addConstraint(Sketcher.Constraint("Coincident", 23, 2, 18, 1))
sketch9.addConstraint(Sketcher.Constraint("Vertical", 0))
sketch9.addConstraint(Sketcher.Constraint("Horizontal", 1))
sketch9.addConstraint(Sketcher.Constraint("Vertical", 2))
sketch9.addConstraint(Sketcher.Constraint("Vertical", 4))
sketch9.addConstraint(Sketcher.Constraint("Horizontal", 5))
sketch9.addConstraint(Sketcher.Constraint("Vertical", 6))
sketch9.addConstraint(Sketcher.Constraint("Horizontal", 7))
sketch9.addConstraint(Sketcher.Constraint("Vertical", 8))
sketch9.addConstraint(Sketcher.Constraint("Vertical", 10))
sketch9.addConstraint(Sketcher.Constraint("Horizontal", 11))
sketch9.addConstraint(Sketcher.Constraint("Vertical", 12))
sketch9.addConstraint(Sketcher.Constraint("Vertical", 14))
sketch9.addConstraint(Sketcher.Constraint("Horizontal", 15))
sketch9.addConstraint(Sketcher.Constraint("Vertical", 16))
sketch9.addConstraint(Sketcher.Constraint("Horizontal", 17))
sketch9.addConstraint(Sketcher.Constraint("Vertical", 18))
sketch9.addConstraint(Sketcher.Constraint("Horizontal", 19))
sketch9.addConstraint(Sketcher.Constraint("Vertical", 20))
sketch9.addConstraint(Sketcher.Constraint("Vertical", 22))
sketch9.addConstraint(Sketcher.Constraint("Horizontal", 23))
sketch9.addConstraint(Sketcher.Constraint("Coincident", 9, 3, 3, 3))
sketch9.addConstraint(Sketcher.Constraint("Coincident", 21, 3, 13, 3))
sketch9.addConstraint(Sketcher.Constraint("Equal", 3, 13))
sketch9.addConstraint(Sketcher.Constraint("Equal", 9, 21))
sketch9.addConstraint(Sketcher.Constraint("Symmetric", 3, 3, 13, 3, -2))
sketch9.addConstraint(Sketcher.Constraint("Symmetric", 1, 2, 14, 2, -2))
sketch9.addConstraint(Sketcher.Constraint("Symmetric", 5, 2, 16, 2, -2))
sketch9.addConstraint(Sketcher.Constraint("Symmetric", 11, 2, 18, 2, -2))
sketch9.addConstraint(Sketcher.Constraint("Symmetric", 7, 2, 22, 2, -2))
sketch9.addConstraint(Sketcher.Constraint("Horizontal", 3, 2, 12, 2))
sketch9.addConstraint(Sketcher.Constraint("Horizontal", 9, 1, 20, 2))
sketch9.addConstraint(Sketcher.Constraint("Equal", 5, 7))
sketch9.addConstraint(Sketcher.Constraint("Radius", 3, Q("46 mm")))
sketch9.addConstraint(Sketcher.Constraint("Radius", 9, Q("48 mm")))
sketch9.addConstraint(Sketcher.Constraint("DistanceX", 1, 1, 1, 2, Q("30 mm")))
sketch9.addConstraint(Sketcher.Constraint("DistanceX", 5, 2, 5, 1, Q("10 mm")))
sketch9.addConstraint(Sketcher.Constraint("DistanceX", 11, 2, 11, 1, Q("26 mm")))
sketch9.addConstraint(Sketcher.Constraint("DistanceY", 0, 1, 0, 2, Q("6.5 mm")))
sketch9.addConstraint(Sketcher.Constraint("DistanceY", 6, 2, 6, 1, Q("2.5 mm")))
sketch9.addConstraint(Sketcher.Constraint("DistanceX", -1, 1, 3, 3, Q("50 mm")))
sketch9.addConstraint(Sketcher.Constraint("DistanceY", 3, 3, -1, 1, Q("43 mm")))
sketch9.addConstraint(Sketcher.Constraint("DistanceY", -1, 1, 4, 2, Q("3 mm")))
sketch9.addConstraint(Sketcher.Constraint("DistanceY", -1, 1, 6, 2, Q("5 mm")))
sketch9.addConstraint(Sketcher.Constraint("DistanceX", 5, 2, 6, 2, Q("2 mm")))
sketch9.addConstraint(Sketcher.Constraint("DistanceX", 12, 2, 5, 2, Q("55 mm")))
sketch9.setExpression("Constraints[56]", "Params.sketch9_radius")
sketch9.setExpression("Constraints[57]", "Params.sketch9_radius2")
sketch9.setExpression("Constraints[58]", "Params.sketch9_width")
sketch9.setExpression("Constraints[59]", "Params.sketch9_width2")
sketch9.setExpression("Constraints[60]", "Params.sketch9_width3")
pad4 = body.newObject("PartDesign::Pad", "Pad003")
pad4.Profile = sketch9
pad4.setExpression("Length", "Params.pad4_length")
doc.recompute()

fillet2 = body.newObject("PartDesign::Fillet", "Fillet001")
fillet2.Base = (pad4, edges_at(pad4, [
    (52.5, 9.5, 17.275),
    (32.5, 3, 17.275),
    (32.5, -0.459, 17.275),
    (52.5, 2.932, 17.275),
    (24.5, 7.5, 17.275),
    (24.5, 5, 17.275),
    (34.5, 5, 17.275),
    (34.5, 2.429, 17.275),
    (50.5, 4.997, 17.275),
    (50.5, 7.5, 17.275),
    (-52.5, 9.5, 17.275),
    (-52.5, 2.932, 17.275),
    (-32.5, -0.459, 17.275),
    (-32.5, 3, 17.275),
    (-24.5, 7.5, 17.275),
    (-50.5, 7.5, 17.275),
    (-50.5, 4.997, 17.275),
    (-34.5, 2.429, 17.275),
    (-34.5, 5, 17.275),
    (-24.5, 5, 17.275),
]))
fillet2.setExpression("Radius", "Params.fillet2_radius")

doc.recompute()
